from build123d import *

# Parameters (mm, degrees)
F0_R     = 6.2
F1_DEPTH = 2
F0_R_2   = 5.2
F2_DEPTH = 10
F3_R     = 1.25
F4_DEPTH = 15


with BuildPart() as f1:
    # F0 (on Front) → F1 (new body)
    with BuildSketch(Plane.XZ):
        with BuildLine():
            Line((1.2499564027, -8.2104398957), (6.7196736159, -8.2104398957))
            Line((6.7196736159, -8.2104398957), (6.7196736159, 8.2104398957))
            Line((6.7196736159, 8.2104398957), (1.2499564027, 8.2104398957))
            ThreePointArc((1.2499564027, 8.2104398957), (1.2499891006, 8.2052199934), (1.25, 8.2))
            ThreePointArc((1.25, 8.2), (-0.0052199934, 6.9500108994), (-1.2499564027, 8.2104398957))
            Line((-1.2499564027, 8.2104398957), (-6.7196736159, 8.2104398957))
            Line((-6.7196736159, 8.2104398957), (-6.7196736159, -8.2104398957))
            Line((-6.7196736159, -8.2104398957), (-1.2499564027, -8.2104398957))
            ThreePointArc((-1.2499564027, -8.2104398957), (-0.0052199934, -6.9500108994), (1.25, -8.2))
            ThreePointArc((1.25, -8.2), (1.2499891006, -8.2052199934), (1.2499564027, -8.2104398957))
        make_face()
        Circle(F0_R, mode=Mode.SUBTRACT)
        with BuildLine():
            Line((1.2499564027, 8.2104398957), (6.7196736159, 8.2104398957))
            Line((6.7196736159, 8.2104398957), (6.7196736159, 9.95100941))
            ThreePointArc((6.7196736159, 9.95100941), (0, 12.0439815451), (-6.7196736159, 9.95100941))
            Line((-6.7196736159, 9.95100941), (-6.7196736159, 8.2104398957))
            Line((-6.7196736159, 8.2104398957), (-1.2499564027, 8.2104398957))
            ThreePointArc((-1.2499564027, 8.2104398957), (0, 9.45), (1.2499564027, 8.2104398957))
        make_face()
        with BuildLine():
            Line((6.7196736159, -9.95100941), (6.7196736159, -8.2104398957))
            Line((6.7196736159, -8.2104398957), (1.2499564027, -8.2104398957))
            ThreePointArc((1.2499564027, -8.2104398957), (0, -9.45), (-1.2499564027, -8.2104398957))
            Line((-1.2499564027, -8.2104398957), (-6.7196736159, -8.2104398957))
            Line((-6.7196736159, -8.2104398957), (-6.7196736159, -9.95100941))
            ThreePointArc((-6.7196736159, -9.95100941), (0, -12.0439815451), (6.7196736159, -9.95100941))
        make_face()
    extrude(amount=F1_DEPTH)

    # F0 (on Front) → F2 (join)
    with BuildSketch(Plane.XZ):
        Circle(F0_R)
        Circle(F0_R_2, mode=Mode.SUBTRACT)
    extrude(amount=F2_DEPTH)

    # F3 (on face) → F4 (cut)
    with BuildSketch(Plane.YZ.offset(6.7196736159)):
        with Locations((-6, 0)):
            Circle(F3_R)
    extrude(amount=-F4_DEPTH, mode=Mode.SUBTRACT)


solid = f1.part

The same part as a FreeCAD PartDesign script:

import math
import FreeCAD as App
import Part
import Sketcher
from FreeCAD import Vector

doc = App.newDocument("Part")
params = doc.addObject("Spreadsheet::Sheet", "Params")
for row, (alias, value) in enumerate([
    ("sketch1_diameter", "12.4 mm"),
    ("sketch1_radius", "1.25 mm"),
    ("sketch1_radius2", "1.25 mm"),
    ("sketch1_radius3", "1.25 mm"),
    ("sketch1_radius4", "1.25 mm"),
    ("pad1_length", "2 mm"),
    ("sketch2_diameter", "12.4 mm"),
    ("sketch2_diameter2", "10.4 mm"),
    ("pad2_length", "10 mm"),
    ("sketch3_diameter", "2.5 mm"),
    ("pocket1_length", "15 mm"),
], start=1):
    params.set(f"A{row}", alias)
    params.set(f"B{row}", "=" + value)
    params.setAlias(f"B{row}", alias)

body = doc.addObject("PartDesign::Body", "Body")

# Sketch on XZ plane
sketch1 = doc.addObject("Sketcher::SketchObject", "Sketch")
body.addObject(sketch1)
sketch1.AttachmentSupport = (doc.XZ_Plane, [""])
sketch1.MapMode = "FlatFace"
sketch1.addGeometry([
    Part.ArcOfCircle(Part.Circle(Vector(0, 0.21044, 0), Vector(0, 0, 1), 11.833542), math.radians(55.399582), math.radians(124.600418)),  # 0
    Part.LineSegment(Vector(-6.719674, 9.951009, 0), Vector(-6.719674, -9.951009, 0)),  # 1
    Part.ArcOfCircle(Part.Circle(Vector(0, -0.21044, 0), Vector(0, 0, 1), 11.833542), math.radians(-124.600418), math.radians(-55.399582)),  # 2
    Part.LineSegment(Vector(6.719674, -9.951009, 0), Vector(6.719674, 9.951009, 0)),  # 3
    Part.ArcOfCircle(Part.Circle(Vector(0, -8.2, 0), Vector(0, 0, 1), 1.25), math.radians(0), math.radians(180.478535)),  # 4
    Part.ArcOfCircle(Part.Circle(Vector(-0.000004, -8.2, 0), Vector(0, 0, 1), 1.250004), math.radians(-0.478534), math.radians(-0.000001)),  # 5
    Part.ArcOfCircle(Part.Circle(Vector(0, -8.2, 0), Vector(0, 0, 1), 1.25), math.radians(-179.521465), math.radians(-0.478535)),  # 6
    Part.ArcOfCircle(Part.Circle(Vector(-0.000004, 8.2, 0), Vector(0, 0, 1), 1.250004), math.radians(0.000001), math.radians(0.478534)),  # 7
    Part.ArcOfCircle(Part.Circle(Vector(0, 8.2, 0), Vector(0, 0, 1), 1.25), math.radians(179.521465), math.radians(360)),  # 8
    Part.ArcOfCircle(Part.Circle(Vector(0, 8.2, 0), Vector(0, 0, 1), 1.25), math.radians(0.478535), math.radians(179.521465)),  # 9
    Part.Circle(Vector(0, 0, 0), Vector(0, 0, 1), 6.2),  # 10
], False)
sketch1.addConstraint([
    Sketcher.Constraint("Coincident", 0, 2, 1, 1),
    Sketcher.Constraint("Coincident", 1, 2, 2, 1),
    Sketcher.Constraint("Coincident", 2, 2, 3, 1),
    Sketcher.Constraint("Coincident", 3, 2, 0, 1),
    Sketcher.Constraint("Coincident", 4, 1, 5, 2),
    Sketcher.Constraint("Coincident", 5, 1, 6, 2),
    Sketcher.Constraint("Coincident", 6, 1, 4, 2),
    Sketcher.Constraint("Coincident", 7, 1, 8, 2),
    Sketcher.Constraint("Coincident", 8, 1, 9, 2),
    Sketcher.Constraint("Coincident", 9, 1, 7, 2),
    Sketcher.Constraint("Vertical", 1),
    Sketcher.Constraint("Vertical", 3),
    Sketcher.Constraint("Coincident", 10, 3, -1, 1),
    Sketcher.Constraint("Coincident", 5, 3, 4, 3),
    Sketcher.Constraint("Coincident", 8, 3, 7, 3),
    Sketcher.Constraint("PointOnObject", 0, 3, -2),
    Sketcher.Constraint("PointOnObject", 2, 3, -2),
    Sketcher.Constraint("PointOnObject", 4, 3, -2),
    Sketcher.Constraint("PointOnObject", 8, 3, -2),
    Sketcher.Constraint("Diameter", 10, 12.4),
    Sketcher.Constraint("Radius", 4, 1.25),
    Sketcher.Constraint("Radius", 6, 1.25),
    Sketcher.Constraint("Radius", 8, 1.25),
    Sketcher.Constraint("Radius", 9, 1.25),
    Sketcher.Constraint("DistanceY", 4, 3, -1, 1, 8.2),
    Sketcher.Constraint("DistanceY", -1, 1, 7, 3, 8.2),
    Sketcher.Constraint("DistanceY", 4, 1, -1, 1, 8.2),
    Sketcher.Constraint("DistanceY", -1, 1, 7, 1, 8.2),
    Sketcher.Constraint("Radius", 0, 11.833542),
    Sketcher.Constraint("Radius", 2, 11.833542),
    Sketcher.Constraint("DistanceY", 1, 2, 1, 1, 19.902019),
    Sketcher.Constraint("DistanceY", 3, 1, 3, 2, 19.902019),
    Sketcher.Constraint("DistanceY", -1, 1, 0, 3, 0.21044),
    Sketcher.Constraint("DistanceY", 2, 3, -1, 1, 0.21044),
    Sketcher.Constraint("DistanceY", 5, 1, -1, 1, 8.21044),
    Sketcher.Constraint("DistanceY", 6, 1, -1, 1, 8.21044),
    Sketcher.Constraint("DistanceY", -1, 1, 8, 1, 8.21044),
    Sketcher.Constraint("DistanceY", -1, 1, 9, 1, 8.21044),
])
sketch1.setExpression("Constraints[19]", "Params.sketch1_diameter")
sketch1.setExpression("Constraints[20]", "Params.sketch1_radius")
sketch1.setExpression("Constraints[21]", "Params.sketch1_radius2")
sketch1.setExpression("Constraints[22]", "Params.sketch1_radius3")
sketch1.setExpression("Constraints[23]", "Params.sketch1_radius4")
pad1 = doc.addObject("PartDesign::Pad", "Pad")
body.addObject(pad1)
pad1.Profile = sketch1
pad1.setExpression("Length", "Params.pad1_length")

# Sketch on XZ plane
sketch2 = doc.addObject("Sketcher::SketchObject", "Sketch001")
body.addObject(sketch2)
sketch2.AttachmentSupport = (doc.XZ_Plane, [""])
sketch2.MapMode = "FlatFace"
sketch2.addGeometry([
    Part.Circle(Vector(0, 0, 0), Vector(0, 0, 1), 6.2),
    Part.Circle(Vector(0, 0, 0), Vector(0, 0, 1), 5.2),
], False)
sketch2.addConstraint([
    Sketcher.Constraint("Coincident", 0, 3, -1, 1),
    Sketcher.Constraint("Coincident", 1, 3, -1, 1),
    Sketcher.Constraint("Diameter", 0, 12.4),
    Sketcher.Constraint("Diameter", 1, 10.4),
])
sketch2.setExpression("Constraints[2]", "Params.sketch2_diameter")
sketch2.setExpression("Constraints[3]", "Params.sketch2_diameter2")
pad2 = doc.addObject("PartDesign::Pad", "Pad001")
body.addObject(pad2)
pad2.Profile = sketch2
pad2.setExpression("Length", "Params.pad2_length")

# Sketch on YZ plane
sketch3 = doc.addObject("Sketcher::SketchObject", "Sketch002")
body.addObject(sketch3)
sketch3.AttachmentSupport = (doc.YZ_Plane, [""])
sketch3.MapMode = "FlatFace"
sketch3.AttachmentOffset = App.Placement(Vector(0, 0, 6.719674), App.Rotation())
sketch3.addGeometry(Part.Circle(Vector(-6, 0, 0), Vector(0, 0, 1), 1.25), False)
sketch3.addConstraint([
    Sketcher.Constraint("PointOnObject", 0, 3, -1),
    Sketcher.Constraint("Diameter", 0, 2.5),
    Sketcher.Constraint("DistanceX", 0, 3, -1, 1, 6.0),
])
sketch3.setExpression("Constraints[1]", "Params.sketch3_diameter")
pocket1 = doc.addObject("PartDesign::Pocket", "Pocket")
body.addObject(pocket1)
pocket1.Profile = sketch3
pocket1.setExpression("Length", "Params.pocket1_length")

doc.recompute()
